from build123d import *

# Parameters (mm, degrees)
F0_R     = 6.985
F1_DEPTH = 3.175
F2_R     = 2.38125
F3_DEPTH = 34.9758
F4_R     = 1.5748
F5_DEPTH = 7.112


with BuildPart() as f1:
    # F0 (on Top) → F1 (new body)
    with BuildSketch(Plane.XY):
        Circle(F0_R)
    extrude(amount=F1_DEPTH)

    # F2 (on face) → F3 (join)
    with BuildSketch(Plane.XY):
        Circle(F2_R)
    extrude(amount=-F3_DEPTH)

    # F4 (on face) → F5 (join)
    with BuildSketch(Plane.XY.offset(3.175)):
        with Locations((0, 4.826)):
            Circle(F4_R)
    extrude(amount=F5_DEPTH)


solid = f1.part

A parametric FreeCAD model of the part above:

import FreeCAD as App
import Part
import Sketcher

V = App.Vector
Q = App.Units.Quantity

doc = App.newDocument("Part")
body = doc.addObject("PartDesign::Body", "Body")

sketch1 = body.newObject("Sketcher::SketchObject", "Sketch")
sketch1.AttachmentSupport = (doc.getObject("XY_Plane"), [""])
sketch1.MapMode = "FlatFace"
sketch1.addGeometry(Part.Circle(V(0, 0, 0), V(0, 0, 1), 7), False)
sketch1.addConstraint([
    Sketcher.Constraint("Coincident", 0, 3, -1, 1),
    Sketcher.Constraint("Diameter", 0, Q("0.55 in")),
])
pad1 = body.newObject("PartDesign::Pad", "Pad")
pad1.Profile = sketch1
pad1.Length = Q("0.125 in")

sketch2 = body.newObject("Sketcher::SketchObject", "Sketch001")
sketch2.AttachmentSupport = (doc.getObject("XY_Plane"), [""])
sketch2.MapMode = "FlatFace"
sketch2.addGeometry(Part.Circle(V(0, 0, 0), V(0, 0, 1), 2.4), False)
sketch2.addConstraint([
    Sketcher.Constraint("Coincident", 0, 3, -1, 1),
    Sketcher.Constraint("Diameter", 0, Q("0.1875 in")),
])
pad2 = body.newObject("PartDesign::Pad", "Pad001")
pad2.Profile = sketch2
pad2.Length = Q("1.377 in")
pad2.Reversed = True

sketch3 = body.newObject("Sketcher::SketchObject", "Sketch002")
sketch3.AttachmentSupport = (doc.getObject("XY_Plane"), [""])
sketch3.MapMode = "FlatFace"
sketch3.AttachmentOffset = App.Placement(V(0, 0, 0.125 * 25.4), App.Rotation())
sketch3.addGeometry(Part.Circle(V(0, 4.8, 0), V(0, 0, 1), 1.6), False)
sketch3.addConstraint([
    Sketcher.Constraint("PointOnObject", 0, 3, -2),
    Sketcher.Constraint("Diameter", 0, Q("0.124 in")),
    Sketcher.Constraint("DistanceY", -1, 1, 0, 3, Q("0.19 in")),
])
pad3 = body.newObject("PartDesign::Pad", "Pad002")
pad3.Profile = sketch3
pad3.Length = Q("0.28 in")

doc.recompute()
